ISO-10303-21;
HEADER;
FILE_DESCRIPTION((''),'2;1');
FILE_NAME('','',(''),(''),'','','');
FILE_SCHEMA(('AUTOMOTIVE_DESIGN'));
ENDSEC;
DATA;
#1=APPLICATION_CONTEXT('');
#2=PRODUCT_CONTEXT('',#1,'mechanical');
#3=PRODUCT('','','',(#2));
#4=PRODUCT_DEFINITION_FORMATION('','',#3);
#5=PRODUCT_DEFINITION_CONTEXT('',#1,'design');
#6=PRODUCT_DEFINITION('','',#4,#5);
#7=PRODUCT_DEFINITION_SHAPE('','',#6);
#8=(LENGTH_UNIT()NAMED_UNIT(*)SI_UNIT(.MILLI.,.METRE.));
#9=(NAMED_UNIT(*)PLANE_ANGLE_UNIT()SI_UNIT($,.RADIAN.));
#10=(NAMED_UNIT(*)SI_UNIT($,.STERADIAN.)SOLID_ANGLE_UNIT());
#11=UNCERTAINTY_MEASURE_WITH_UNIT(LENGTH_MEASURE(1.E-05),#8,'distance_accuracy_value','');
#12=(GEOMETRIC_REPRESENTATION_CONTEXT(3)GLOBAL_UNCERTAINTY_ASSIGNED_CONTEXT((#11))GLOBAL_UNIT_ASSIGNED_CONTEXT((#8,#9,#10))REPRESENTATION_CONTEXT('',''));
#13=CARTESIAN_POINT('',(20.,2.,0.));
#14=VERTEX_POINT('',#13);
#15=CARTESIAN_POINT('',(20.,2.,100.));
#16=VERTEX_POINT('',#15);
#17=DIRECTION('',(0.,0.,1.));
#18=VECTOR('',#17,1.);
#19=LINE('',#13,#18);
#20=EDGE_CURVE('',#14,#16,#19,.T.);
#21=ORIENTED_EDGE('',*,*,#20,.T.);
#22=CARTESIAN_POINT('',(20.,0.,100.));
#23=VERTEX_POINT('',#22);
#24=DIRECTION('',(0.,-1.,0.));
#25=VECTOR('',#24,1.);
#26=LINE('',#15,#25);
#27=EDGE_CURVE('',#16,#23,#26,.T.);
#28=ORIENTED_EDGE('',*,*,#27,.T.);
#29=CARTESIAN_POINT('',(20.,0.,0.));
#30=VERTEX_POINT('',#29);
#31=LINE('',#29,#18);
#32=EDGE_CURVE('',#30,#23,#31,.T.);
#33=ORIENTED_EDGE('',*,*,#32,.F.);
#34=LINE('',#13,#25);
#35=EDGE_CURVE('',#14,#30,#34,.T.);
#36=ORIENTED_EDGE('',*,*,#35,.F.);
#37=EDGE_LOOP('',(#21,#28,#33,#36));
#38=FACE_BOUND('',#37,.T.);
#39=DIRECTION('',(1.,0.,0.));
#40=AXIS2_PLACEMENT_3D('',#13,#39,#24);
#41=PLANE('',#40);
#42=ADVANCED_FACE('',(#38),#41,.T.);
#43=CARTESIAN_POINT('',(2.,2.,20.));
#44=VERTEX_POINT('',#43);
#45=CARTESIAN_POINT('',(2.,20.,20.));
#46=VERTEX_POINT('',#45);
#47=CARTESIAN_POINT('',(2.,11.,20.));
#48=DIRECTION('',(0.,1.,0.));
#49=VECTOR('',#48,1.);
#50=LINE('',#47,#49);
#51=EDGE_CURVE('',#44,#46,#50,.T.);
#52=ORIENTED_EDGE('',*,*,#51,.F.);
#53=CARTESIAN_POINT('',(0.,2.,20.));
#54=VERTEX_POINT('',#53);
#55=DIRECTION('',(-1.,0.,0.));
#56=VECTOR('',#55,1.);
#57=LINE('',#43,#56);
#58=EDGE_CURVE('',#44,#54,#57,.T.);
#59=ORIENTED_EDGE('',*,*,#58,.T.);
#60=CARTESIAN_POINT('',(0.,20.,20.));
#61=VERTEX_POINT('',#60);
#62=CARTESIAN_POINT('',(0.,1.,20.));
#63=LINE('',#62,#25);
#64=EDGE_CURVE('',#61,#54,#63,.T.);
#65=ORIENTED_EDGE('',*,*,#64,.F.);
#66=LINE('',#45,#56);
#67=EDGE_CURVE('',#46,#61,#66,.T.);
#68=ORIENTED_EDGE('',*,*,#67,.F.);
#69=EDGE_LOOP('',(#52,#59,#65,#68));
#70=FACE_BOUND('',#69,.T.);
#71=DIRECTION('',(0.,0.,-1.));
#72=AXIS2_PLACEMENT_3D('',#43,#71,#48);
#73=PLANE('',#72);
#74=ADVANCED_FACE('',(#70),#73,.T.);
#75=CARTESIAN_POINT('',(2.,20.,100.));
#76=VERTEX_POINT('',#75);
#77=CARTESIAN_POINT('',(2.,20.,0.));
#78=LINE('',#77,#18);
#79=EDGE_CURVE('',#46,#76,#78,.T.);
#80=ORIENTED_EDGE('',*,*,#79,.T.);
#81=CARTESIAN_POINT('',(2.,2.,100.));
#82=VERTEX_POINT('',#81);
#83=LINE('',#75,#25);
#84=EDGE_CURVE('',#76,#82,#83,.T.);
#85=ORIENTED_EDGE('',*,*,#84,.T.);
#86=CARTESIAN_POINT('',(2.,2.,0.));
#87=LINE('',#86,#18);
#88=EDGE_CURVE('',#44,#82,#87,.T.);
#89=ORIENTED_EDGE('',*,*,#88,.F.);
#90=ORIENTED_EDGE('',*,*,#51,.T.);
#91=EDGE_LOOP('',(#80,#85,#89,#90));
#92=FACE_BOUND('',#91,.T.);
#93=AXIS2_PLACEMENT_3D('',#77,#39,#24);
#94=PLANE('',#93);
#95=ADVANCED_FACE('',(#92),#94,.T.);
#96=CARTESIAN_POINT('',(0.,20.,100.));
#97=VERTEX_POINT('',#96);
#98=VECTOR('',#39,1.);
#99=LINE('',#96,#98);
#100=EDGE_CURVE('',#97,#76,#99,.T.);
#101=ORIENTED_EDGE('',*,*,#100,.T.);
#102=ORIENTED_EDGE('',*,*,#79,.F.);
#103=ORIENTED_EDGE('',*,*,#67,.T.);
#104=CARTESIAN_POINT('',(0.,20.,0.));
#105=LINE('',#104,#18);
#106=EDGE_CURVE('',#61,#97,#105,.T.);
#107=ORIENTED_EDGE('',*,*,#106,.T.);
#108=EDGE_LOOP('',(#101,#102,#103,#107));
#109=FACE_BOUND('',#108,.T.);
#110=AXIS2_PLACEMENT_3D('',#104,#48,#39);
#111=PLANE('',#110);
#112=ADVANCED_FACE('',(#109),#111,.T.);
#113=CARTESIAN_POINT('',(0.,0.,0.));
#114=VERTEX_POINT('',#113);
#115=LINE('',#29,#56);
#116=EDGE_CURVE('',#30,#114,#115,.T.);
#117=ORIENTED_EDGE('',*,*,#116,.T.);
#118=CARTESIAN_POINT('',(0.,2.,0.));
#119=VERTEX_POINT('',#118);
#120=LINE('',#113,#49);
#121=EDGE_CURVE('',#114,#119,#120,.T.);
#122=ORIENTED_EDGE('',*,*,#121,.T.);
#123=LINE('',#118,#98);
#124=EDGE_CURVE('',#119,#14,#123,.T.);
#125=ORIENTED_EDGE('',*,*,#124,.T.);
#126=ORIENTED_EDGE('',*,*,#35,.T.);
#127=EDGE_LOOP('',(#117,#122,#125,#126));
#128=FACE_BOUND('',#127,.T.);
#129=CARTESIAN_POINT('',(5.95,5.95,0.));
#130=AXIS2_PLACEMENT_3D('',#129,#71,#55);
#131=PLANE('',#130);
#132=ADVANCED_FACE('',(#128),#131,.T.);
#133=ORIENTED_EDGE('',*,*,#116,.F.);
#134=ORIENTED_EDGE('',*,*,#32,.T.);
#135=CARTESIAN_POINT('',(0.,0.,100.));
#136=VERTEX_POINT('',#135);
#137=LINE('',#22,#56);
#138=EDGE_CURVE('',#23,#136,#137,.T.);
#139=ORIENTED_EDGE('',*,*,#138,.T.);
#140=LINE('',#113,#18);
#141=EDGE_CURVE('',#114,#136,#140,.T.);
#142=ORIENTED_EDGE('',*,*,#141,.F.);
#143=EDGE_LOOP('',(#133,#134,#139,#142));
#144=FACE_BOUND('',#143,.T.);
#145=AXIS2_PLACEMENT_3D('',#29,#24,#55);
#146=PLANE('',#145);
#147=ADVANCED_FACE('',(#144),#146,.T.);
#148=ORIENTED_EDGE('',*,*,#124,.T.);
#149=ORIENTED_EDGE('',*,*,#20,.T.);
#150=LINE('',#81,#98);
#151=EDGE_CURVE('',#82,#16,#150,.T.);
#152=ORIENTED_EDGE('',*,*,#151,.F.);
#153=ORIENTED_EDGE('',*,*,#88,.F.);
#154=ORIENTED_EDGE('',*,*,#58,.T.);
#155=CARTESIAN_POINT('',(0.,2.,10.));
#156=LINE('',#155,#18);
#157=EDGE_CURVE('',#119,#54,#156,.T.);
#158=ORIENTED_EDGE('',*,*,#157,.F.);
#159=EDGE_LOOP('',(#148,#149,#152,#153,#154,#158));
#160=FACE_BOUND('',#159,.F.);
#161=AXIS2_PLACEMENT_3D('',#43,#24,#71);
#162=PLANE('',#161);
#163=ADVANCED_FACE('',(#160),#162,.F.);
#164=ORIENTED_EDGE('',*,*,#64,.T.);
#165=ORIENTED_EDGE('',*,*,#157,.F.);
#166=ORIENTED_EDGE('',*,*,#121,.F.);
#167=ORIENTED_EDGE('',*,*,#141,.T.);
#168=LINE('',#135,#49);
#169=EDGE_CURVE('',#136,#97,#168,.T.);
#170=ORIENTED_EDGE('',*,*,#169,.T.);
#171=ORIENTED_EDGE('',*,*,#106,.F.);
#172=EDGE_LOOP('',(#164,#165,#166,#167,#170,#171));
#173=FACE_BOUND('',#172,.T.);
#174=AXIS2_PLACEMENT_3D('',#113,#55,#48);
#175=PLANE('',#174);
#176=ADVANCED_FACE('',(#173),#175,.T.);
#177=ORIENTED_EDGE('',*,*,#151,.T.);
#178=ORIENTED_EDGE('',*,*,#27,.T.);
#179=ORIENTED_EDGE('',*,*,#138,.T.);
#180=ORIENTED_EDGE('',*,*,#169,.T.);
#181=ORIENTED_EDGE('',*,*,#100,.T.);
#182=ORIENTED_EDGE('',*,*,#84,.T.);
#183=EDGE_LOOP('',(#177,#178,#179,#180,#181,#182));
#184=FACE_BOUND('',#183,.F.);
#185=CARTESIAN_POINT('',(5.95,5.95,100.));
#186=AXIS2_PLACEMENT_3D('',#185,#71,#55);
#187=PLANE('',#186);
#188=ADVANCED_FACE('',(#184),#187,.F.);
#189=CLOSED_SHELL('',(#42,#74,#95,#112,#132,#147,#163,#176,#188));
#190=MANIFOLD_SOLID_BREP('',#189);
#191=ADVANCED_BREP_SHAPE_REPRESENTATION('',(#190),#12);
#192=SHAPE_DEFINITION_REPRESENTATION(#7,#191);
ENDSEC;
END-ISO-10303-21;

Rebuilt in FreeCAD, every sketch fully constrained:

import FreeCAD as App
import Part
import Sketcher
Q = App.Units.Quantity

doc = App.newDocument("Part")
body = doc.addObject("PartDesign::Body", "Body")

sketch1 = doc.addObject("Sketcher::SketchObject", "Sketch")
body.addObject(sketch1)
sketch1.AttachmentSupport = (doc.XY_Plane, [""])
sketch1.MapMode = "FlatFace"
sketch1.addGeometry([
    Part.LineSegment(App.Vector(0, 20, 0), App.Vector(0, 0, 0)),
    Part.LineSegment(App.Vector(0, 0, 0), App.Vector(20, 0, 0)),
    Part.LineSegment(App.Vector(20, 0, 0), App.Vector(20, 2, 0)),
    Part.LineSegment(App.Vector(20, 2, 0), App.Vector(2, 2, 0)),
    Part.LineSegment(App.Vector(2, 2, 0), App.Vector(2, 20, 0)),
    Part.LineSegment(App.Vector(2, 20, 0), App.Vector(0, 20, 0)),
], False)
sketch1.addConstraint([
    Sketcher.Constraint("Coincident", 0, 2, 1, 1),
    Sketcher.Constraint("Coincident", 1, 2, 2, 1),
    Sketcher.Constraint("Coincident", 2, 2, 3, 1),
    Sketcher.Constraint("Coincident", 3, 2, 4, 1),
    Sketcher.Constraint("Coincident", 4, 2, 5, 1),
    Sketcher.Constraint("Coincident", 5, 2, 0, 1),
    Sketcher.Constraint("Vertical", 0),
    Sketcher.Constraint("Horizontal", 1),
    Sketcher.Constraint("Vertical", 2),
    Sketcher.Constraint("Horizontal", 3),
    Sketcher.Constraint("Vertical", 4),
    Sketcher.Constraint("Horizontal", 5),
    Sketcher.Constraint("Coincident", 0, 2, -1, 1),
    Sketcher.Constraint("Equal", 1, 0),
    Sketcher.Constraint("Equal", 5, 2),
    Sketcher.Constraint("DistanceX", 1, 1, 1, 2, Q("20 mm")),
    Sketcher.Constraint("DistanceX", 3, 2, 3, 1, Q("18 mm")),
])
pad1 = doc.addObject("PartDesign::Pad", "Pad")
body.addObject(pad1)
pad1.Profile = sketch1
pad1.Length = 100

sketch2 = doc.addObject("Sketcher::SketchObject", "Sketch001")
body.addObject(sketch2)
sketch2.AttachmentSupport = (doc.YZ_Plane, [""])
sketch2.MapMode = "FlatFace"
sketch2.AttachmentOffset = App.Placement(App.Vector(0, 0, 2), App.Rotation())
sketch2.addGeometry([
    Part.LineSegment(App.Vector(20, 20, 0), App.Vector(2, 20, 0)),
    Part.LineSegment(App.Vector(2, 20, 0), App.Vector(2, 0, 0)),
    Part.LineSegment(App.Vector(2, 0, 0), App.Vector(20, 0, 0)),
    Part.LineSegment(App.Vector(20, 0, 0), App.Vector(20, 20, 0)),
], False)
sketch2.addConstraint([
    Sketcher.Constraint("Coincident", 0, 2, 1, 1),
    Sketcher.Constraint("Coincident", 1, 2, 2, 1),
    Sketcher.Constraint("Coincident", 2, 2, 3, 1),
    Sketcher.Constraint("Coincident", 3, 2, 0, 1),
    Sketcher.Constraint("Horizontal", 0),
    Sketcher.Constraint("Vertical", 1),
    Sketcher.Constraint("Horizontal", 2),
    Sketcher.Constraint("Vertical", 3),
    Sketcher.Constraint("PointOnObject", 1, 2, -1),
    Sketcher.Constraint("DistanceX", 0, 2, 0, 1, Q("18 mm")),
    Sketcher.Constraint("DistanceY", 1, 2, 1, 1, Q("20 mm")),
    Sketcher.Constraint("DistanceX", -1, 1, 0, 2, Q("2 mm")),
])
pocket1 = doc.addObject("PartDesign::Pocket", "Pocket")
body.addObject(pocket1)
pocket1.Profile = sketch2
pocket1.Type = "ThroughAll"

doc.recompute()
